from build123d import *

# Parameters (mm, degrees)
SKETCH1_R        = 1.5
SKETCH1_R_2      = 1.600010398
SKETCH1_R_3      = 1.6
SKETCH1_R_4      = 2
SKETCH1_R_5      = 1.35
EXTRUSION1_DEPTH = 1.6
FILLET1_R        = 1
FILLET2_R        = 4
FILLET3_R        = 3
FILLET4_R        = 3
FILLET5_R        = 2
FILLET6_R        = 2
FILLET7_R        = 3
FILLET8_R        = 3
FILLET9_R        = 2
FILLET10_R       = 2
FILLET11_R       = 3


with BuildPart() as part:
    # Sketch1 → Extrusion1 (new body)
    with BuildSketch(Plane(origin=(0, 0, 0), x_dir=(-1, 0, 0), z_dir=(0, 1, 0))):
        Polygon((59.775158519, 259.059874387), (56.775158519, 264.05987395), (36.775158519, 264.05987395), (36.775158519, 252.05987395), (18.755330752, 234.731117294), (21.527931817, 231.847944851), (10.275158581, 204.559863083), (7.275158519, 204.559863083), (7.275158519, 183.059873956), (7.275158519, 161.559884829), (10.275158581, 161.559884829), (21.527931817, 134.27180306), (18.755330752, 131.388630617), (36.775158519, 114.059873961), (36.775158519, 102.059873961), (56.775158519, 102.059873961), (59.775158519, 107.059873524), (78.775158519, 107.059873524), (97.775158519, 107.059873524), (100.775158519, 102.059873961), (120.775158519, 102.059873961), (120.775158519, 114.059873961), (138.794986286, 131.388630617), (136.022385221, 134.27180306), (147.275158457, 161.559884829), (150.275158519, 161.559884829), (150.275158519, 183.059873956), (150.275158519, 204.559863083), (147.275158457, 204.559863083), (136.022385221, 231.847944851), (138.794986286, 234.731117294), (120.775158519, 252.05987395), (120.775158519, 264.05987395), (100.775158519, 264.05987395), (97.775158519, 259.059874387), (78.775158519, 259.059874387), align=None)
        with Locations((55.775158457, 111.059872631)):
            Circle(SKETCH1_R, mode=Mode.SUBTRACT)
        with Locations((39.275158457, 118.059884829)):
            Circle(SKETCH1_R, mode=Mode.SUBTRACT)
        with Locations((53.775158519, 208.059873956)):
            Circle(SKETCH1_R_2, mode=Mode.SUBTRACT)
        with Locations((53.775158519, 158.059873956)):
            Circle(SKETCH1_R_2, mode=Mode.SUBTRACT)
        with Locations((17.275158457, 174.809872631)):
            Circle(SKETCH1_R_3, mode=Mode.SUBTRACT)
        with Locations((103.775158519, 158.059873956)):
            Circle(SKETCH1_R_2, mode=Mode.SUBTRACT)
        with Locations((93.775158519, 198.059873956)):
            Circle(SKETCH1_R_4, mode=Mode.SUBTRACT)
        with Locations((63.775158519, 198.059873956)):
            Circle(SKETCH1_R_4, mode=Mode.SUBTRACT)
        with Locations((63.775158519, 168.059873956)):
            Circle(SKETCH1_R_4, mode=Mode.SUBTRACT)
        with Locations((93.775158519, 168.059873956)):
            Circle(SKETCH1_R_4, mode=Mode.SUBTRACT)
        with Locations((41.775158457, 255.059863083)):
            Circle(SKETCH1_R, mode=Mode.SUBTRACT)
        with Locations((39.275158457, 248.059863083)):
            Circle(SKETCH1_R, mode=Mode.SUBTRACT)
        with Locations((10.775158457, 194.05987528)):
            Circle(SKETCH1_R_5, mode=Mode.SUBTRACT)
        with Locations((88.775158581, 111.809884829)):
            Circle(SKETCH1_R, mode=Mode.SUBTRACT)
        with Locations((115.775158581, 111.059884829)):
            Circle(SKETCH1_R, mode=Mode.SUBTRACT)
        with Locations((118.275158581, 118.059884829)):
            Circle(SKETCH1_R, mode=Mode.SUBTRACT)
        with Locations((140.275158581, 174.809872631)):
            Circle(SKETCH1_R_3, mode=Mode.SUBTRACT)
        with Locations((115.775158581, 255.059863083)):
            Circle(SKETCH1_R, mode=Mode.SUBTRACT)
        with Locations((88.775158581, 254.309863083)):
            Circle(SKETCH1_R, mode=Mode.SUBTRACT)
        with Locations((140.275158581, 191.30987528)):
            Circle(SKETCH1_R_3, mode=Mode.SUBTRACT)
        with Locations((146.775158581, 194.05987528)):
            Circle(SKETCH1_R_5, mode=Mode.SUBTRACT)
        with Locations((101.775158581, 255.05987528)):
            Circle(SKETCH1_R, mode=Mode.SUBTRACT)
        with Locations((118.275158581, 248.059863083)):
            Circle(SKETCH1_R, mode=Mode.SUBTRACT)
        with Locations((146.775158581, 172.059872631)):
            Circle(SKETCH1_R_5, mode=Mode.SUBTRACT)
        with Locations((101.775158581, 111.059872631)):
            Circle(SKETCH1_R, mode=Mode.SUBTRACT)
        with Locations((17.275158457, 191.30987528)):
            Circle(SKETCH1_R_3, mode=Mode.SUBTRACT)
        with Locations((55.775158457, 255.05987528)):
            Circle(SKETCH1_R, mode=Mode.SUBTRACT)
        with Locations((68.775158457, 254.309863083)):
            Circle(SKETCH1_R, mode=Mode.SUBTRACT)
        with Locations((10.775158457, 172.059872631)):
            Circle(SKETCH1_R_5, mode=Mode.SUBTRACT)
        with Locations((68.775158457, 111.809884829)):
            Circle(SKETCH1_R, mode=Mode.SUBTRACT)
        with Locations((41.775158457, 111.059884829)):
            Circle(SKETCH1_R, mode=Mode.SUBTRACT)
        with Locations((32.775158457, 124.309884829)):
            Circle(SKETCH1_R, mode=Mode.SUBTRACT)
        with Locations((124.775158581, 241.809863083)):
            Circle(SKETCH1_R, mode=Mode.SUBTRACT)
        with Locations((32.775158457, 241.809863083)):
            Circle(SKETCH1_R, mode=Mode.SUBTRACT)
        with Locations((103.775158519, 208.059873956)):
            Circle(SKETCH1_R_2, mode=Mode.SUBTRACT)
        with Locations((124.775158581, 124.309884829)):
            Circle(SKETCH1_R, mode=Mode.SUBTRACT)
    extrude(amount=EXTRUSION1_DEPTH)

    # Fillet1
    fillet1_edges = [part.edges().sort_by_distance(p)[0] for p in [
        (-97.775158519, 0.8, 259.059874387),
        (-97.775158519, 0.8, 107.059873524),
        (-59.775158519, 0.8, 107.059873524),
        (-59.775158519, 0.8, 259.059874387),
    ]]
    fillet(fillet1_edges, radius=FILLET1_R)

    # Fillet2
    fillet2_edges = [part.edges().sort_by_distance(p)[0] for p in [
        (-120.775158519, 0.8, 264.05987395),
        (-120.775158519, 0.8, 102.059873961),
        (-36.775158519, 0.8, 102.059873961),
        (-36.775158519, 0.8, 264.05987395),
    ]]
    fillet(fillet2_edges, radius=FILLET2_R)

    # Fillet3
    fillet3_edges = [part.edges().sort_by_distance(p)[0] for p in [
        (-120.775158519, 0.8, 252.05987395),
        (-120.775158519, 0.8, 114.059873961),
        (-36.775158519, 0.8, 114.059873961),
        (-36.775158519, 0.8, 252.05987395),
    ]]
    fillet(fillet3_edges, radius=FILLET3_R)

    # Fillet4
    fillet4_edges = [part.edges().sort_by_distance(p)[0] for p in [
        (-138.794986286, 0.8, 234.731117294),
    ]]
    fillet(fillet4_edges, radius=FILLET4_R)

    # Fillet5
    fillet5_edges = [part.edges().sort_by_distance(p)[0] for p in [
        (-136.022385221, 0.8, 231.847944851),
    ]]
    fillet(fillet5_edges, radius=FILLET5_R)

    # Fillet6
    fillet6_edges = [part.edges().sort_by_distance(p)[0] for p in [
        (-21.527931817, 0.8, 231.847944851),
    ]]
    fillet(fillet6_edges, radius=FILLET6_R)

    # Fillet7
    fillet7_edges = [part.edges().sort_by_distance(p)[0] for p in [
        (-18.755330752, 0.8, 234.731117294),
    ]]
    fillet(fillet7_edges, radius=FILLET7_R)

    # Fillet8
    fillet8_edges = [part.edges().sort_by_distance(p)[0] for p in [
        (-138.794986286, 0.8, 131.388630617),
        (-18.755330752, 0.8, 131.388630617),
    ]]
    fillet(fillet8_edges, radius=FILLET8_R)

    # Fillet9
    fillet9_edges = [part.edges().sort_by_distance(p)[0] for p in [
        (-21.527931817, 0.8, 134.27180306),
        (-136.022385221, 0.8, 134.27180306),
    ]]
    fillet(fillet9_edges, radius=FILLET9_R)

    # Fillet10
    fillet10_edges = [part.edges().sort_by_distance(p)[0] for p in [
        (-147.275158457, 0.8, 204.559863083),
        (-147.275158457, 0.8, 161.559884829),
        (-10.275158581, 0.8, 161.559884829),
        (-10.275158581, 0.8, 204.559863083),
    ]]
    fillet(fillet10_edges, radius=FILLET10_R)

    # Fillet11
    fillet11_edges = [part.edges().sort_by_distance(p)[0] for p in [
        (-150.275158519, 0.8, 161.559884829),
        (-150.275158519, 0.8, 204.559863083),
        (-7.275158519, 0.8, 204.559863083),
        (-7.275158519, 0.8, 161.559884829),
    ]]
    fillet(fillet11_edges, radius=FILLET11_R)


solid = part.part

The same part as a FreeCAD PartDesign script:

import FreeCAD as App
import Part
import Sketcher
Q = App.Units.Quantity


def edges_at(feature, points):
    """Names of the edges that pass closest to the given points."""
    edges = feature.Shape.Edges
    near = lambda p: min(range(len(edges)), key=lambda i: edges[i].distToShape(Part.Vertex(*p))[0])
    return sorted({f"Edge{near(p) + 1}" for p in points})

doc = App.newDocument("Part")
body = doc.addObject("PartDesign::Body", "Body")

# Sketch on XZ plane
sketch1 = body.newObject("Sketcher::SketchObject", "Sketch")
sketch1.AttachmentSupport = (doc.getObject("XZ_Plane"), [""])
sketch1.MapMode = "FlatFace"
sketch1.addGeometry([
    Part.LineSegment(App.Vector(-59.775159, 259.059874, 0), App.Vector(-56.775159, 264.059874, 0)),  # 0
    Part.LineSegment(App.Vector(-56.775159, 264.059874, 0), App.Vector(-36.775159, 264.059874, 0)),  # 1
    Part.LineSegment(App.Vector(-36.775159, 264.059874, 0), App.Vector(-36.775159, 252.059874, 0)),  # 2
    Part.LineSegment(App.Vector(-36.775159, 252.059874, 0), App.Vector(-18.755331, 234.731117, 0)),  # 3
    Part.LineSegment(App.Vector(-18.755331, 234.731117, 0), App.Vector(-21.527932, 231.847945, 0)),  # 4
    Part.LineSegment(App.Vector(-21.527932, 231.847945, 0), App.Vector(-10.275159, 204.559863, 0)),  # 5
    Part.LineSegment(App.Vector(-10.275159, 204.559863, 0), App.Vector(-7.275159, 204.559863, 0)),  # 6
    Part.LineSegment(App.Vector(-7.275159, 204.559863, 0), App.Vector(-7.275159, 161.559885, 0)),  # 7
    Part.LineSegment(App.Vector(-7.275159, 161.559885, 0), App.Vector(-10.275159, 161.559885, 0)),  # 8
    Part.LineSegment(App.Vector(-10.275159, 161.559885, 0), App.Vector(-21.527932, 134.271803, 0)),  # 9
    Part.LineSegment(App.Vector(-21.527932, 134.271803, 0), App.Vector(-18.755331, 131.388631, 0)),  # 10
    Part.LineSegment(App.Vector(-18.755331, 131.388631, 0), App.Vector(-36.775159, 114.059874, 0)),  # 11
    Part.LineSegment(App.Vector(-36.775159, 114.059874, 0), App.Vector(-36.775159, 102.059874, 0)),  # 12
    Part.LineSegment(App.Vector(-36.775159, 102.059874, 0), App.Vector(-56.775159, 102.059874, 0)),  # 13
    Part.LineSegment(App.Vector(-56.775159, 102.059874, 0), App.Vector(-59.775159, 107.059874, 0)),  # 14
    Part.LineSegment(App.Vector(-59.775159, 107.059874, 0), App.Vector(-97.775159, 107.059874, 0)),  # 15
    Part.LineSegment(App.Vector(-97.775159, 107.059874, 0), App.Vector(-100.775159, 102.059874, 0)),  # 16
    Part.LineSegment(App.Vector(-100.775159, 102.059874, 0), App.Vector(-120.775159, 102.059874, 0)),  # 17
    Part.LineSegment(App.Vector(-120.775159, 102.059874, 0), App.Vector(-120.775159, 114.059874, 0)),  # 18
    Part.LineSegment(App.Vector(-120.775159, 114.059874, 0), App.Vector(-138.794986, 131.388631, 0)),  # 19
    Part.LineSegment(App.Vector(-138.794986, 131.388631, 0), App.Vector(-136.022385, 134.271803, 0)),  # 20
    Part.LineSegment(App.Vector(-136.022385, 134.271803, 0), App.Vector(-147.275158, 161.559885, 0)),  # 21
    Part.LineSegment(App.Vector(-147.275158, 161.559885, 0), App.Vector(-150.275159, 161.559885, 0)),  # 22
    Part.LineSegment(App.Vector(-150.275159, 161.559885, 0), App.Vector(-150.275159, 204.559863, 0)),  # 23
    Part.LineSegment(App.Vector(-150.275159, 204.559863, 0), App.Vector(-147.275158, 204.559863, 0)),  # 24
    Part.LineSegment(App.Vector(-147.275158, 204.559863, 0), App.Vector(-136.022385, 231.847945, 0)),  # 25
    Part.LineSegment(App.Vector(-136.022385, 231.847945, 0), App.Vector(-138.794986, 234.731117, 0)),  # 26
    Part.LineSegment(App.Vector(-138.794986, 234.731117, 0), App.Vector(-120.775159, 252.059874, 0)),  # 27
    Part.LineSegment(App.Vector(-120.775159, 252.059874, 0), App.Vector(-120.775159, 264.059874, 0)),  # 28
    Part.LineSegment(App.Vector(-120.775159, 264.059874, 0), App.Vector(-100.775159, 264.059874, 0)),  # 29
    Part.LineSegment(App.Vector(-100.775159, 264.059874, 0), App.Vector(-97.775159, 259.059874, 0)),  # 30
    Part.LineSegment(App.Vector(-97.775159, 259.059874, 0), App.Vector(-59.775159, 259.059874, 0)),  # 31
    Part.Circle(App.Vector(-41.775158, 111.059885, 0), App.Vector(0, 0, 1), 1.5),  # 32
    Part.Circle(App.Vector(-39.275158, 118.059885, 0), App.Vector(0, 0, 1), 1.5),  # 33
    Part.Circle(App.Vector(-32.775158, 124.309885, 0), App.Vector(0, 0, 1), 1.5),  # 34
    Part.Circle(App.Vector(-55.775158, 111.059873, 0), App.Vector(0, 0, 1), 1.5),  # 35
    Part.Circle(App.Vector(-68.775158, 111.809885, 0), App.Vector(0, 0, 1), 1.5),  # 36
    Part.Circle(App.Vector(-10.775158, 172.059873, 0), App.Vector(0, 0, 1), 1.35),  # 37
    Part.Circle(App.Vector(-17.275158, 174.809873, 0), App.Vector(0, 0, 1), 1.6),  # 38
    Part.Circle(App.Vector(-53.775159, 158.059874, 0), App.Vector(0, 0, 1), 1.60001),  # 39
    Part.Circle(App.Vector(-63.775159, 168.059874, 0), App.Vector(0, 0, 1), 2),  # 40
    Part.Circle(App.Vector(-88.775159, 111.809885, 0), App.Vector(0, 0, 1), 1.5),  # 41
    Part.Circle(App.Vector(-101.775159, 111.059873, 0), App.Vector(0, 0, 1), 1.5),  # 42
    Part.Circle(App.Vector(-115.775159, 111.059885, 0), App.Vector(0, 0, 1), 1.5),  # 43
    Part.Circle(App.Vector(-118.275159, 118.059885, 0), App.Vector(0, 0, 1), 1.5),  # 44
    Part.Circle(App.Vector(-124.775159, 124.309885, 0), App.Vector(0, 0, 1), 1.5),  # 45
    Part.Circle(App.Vector(-103.775159, 158.059874, 0), App.Vector(0, 0, 1), 1.60001),  # 46
    Part.Circle(App.Vector(-93.775159, 168.059874, 0), App.Vector(0, 0, 1), 2),  # 47
    Part.Circle(App.Vector(-146.775159, 172.059873, 0), App.Vector(0, 0, 1), 1.35),  # 48
    Part.Circle(App.Vector(-140.275159, 174.809873, 0), App.Vector(0, 0, 1), 1.6),  # 49
    Part.Circle(App.Vector(-17.275158, 191.309875, 0), App.Vector(0, 0, 1), 1.6),  # 50
    Part.Circle(App.Vector(-10.775158, 194.059875, 0), App.Vector(0, 0, 1), 1.35),  # 51
    Part.Circle(App.Vector(-63.775159, 198.059874, 0), App.Vector(0, 0, 1), 2),  # 52
    Part.Circle(App.Vector(-53.775159, 208.059874, 0), App.Vector(0, 0, 1), 1.60001),  # 53
    Part.Circle(App.Vector(-32.775158, 241.809863, 0), App.Vector(0, 0, 1), 1.5),  # 54
    Part.Circle(App.Vector(-39.275158, 248.059863, 0), App.Vector(0, 0, 1), 1.5),  # 55
    Part.Circle(App.Vector(-41.775158, 255.059863, 0), App.Vector(0, 0, 1), 1.5),  # 56
    Part.Circle(App.Vector(-55.775158, 255.059875, 0), App.Vector(0, 0, 1), 1.5),  # 57
    Part.Circle(App.Vector(-68.775158, 254.309863, 0), App.Vector(0, 0, 1), 1.5),  # 58
    Part.Circle(App.Vector(-93.775159, 198.059874, 0), App.Vector(0, 0, 1), 2),  # 59
    Part.Circle(App.Vector(-103.775159, 208.059874, 0), App.Vector(0, 0, 1), 1.60001),  # 60
    Part.Circle(App.Vector(-140.275159, 191.309875, 0), App.Vector(0, 0, 1), 1.6),  # 61
    Part.Circle(App.Vector(-146.775159, 194.059875, 0), App.Vector(0, 0, 1), 1.35),  # 62
    Part.Circle(App.Vector(-88.775159, 254.309863, 0), App.Vector(0, 0, 1), 1.5),  # 63
    Part.Circle(App.Vector(-101.775159, 255.059875, 0), App.Vector(0, 0, 1), 1.5),  # 64
    Part.Circle(App.Vector(-124.775159, 241.809863, 0), App.Vector(0, 0, 1), 1.5),  # 65
    Part.Circle(App.Vector(-118.275159, 248.059863, 0), App.Vector(0, 0, 1), 1.5),  # 66
    Part.Circle(App.Vector(-115.775159, 255.059863, 0), App.Vector(0, 0, 1), 1.5),  # 67
], False)
sketch1.addConstraint([
    Sketcher.Constraint("Coincident", 0, 2, 1, 1),
    Sketcher.Constraint("Coincident", 1, 2, 2, 1),
    Sketcher.Constraint("Coincident", 2, 2, 3, 1),
    Sketcher.Constraint("Coincident", 3, 2, 4, 1),
    Sketcher.Constraint("Coincident", 4, 2, 5, 1),
    Sketcher.Constraint("Coincident", 5, 2, 6, 1),
    Sketcher.Constraint("Coincident", 6, 2, 7, 1),
    Sketcher.Constraint("Coincident", 7, 2, 8, 1),
    Sketcher.Constraint("Coincident", 8, 2, 9, 1),
    Sketcher.Constraint("Coincident", 9, 2, 10, 1),
    Sketcher.Constraint("Coincident", 10, 2, 11, 1),
    Sketcher.Constraint("Coincident", 11, 2, 12, 1),
    Sketcher.Constraint("Coincident", 12, 2, 13, 1),
    Sketcher.Constraint("Coincident", 13, 2, 14, 1),
    Sketcher.Constraint("Coincident", 14, 2, 15, 1),
    Sketcher.Constraint("Coincident", 15, 2, 16, 1),
    Sketcher.Constraint("Coincident", 16, 2, 17, 1),
    Sketcher.Constraint("Coincident", 17, 2, 18, 1),
    Sketcher.Constraint("Coincident", 18, 2, 19, 1),
    Sketcher.Constraint("Coincident", 19, 2, 20, 1),
    Sketcher.Constraint("Coincident", 20, 2, 21, 1),
    Sketcher.Constraint("Coincident", 21, 2, 22, 1),
    Sketcher.Constraint("Coincident", 22, 2, 23, 1),
    Sketcher.Constraint("Coincident", 23, 2, 24, 1),
    Sketcher.Constraint("Coincident", 24, 2, 25, 1),
    Sketcher.Constraint("Coincident", 25, 2, 26, 1),
    Sketcher.Constraint("Coincident", 26, 2, 27, 1),
    Sketcher.Constraint("Coincident", 27, 2, 28, 1),
    Sketcher.Constraint("Coincident", 28, 2, 29, 1),
    Sketcher.Constraint("Coincident", 29, 2, 30, 1),
    Sketcher.Constraint("Coincident", 30, 2, 31, 1),
    Sketcher.Constraint("Coincident", 31, 2, 0, 1),
    Sketcher.Constraint("Horizontal", 1),
    Sketcher.Constraint("Vertical", 2),
    Sketcher.Constraint("Horizontal", 6),
    Sketcher.Constraint("Vertical", 7),
    Sketcher.Constraint("Horizontal", 8),
    Sketcher.Constraint("Vertical", 12),
    Sketcher.Constraint("Horizontal", 13),
    Sketcher.Constraint("Horizontal", 15),
    Sketcher.Constraint("Horizontal", 17),
    Sketcher.Constraint("Vertical", 18),
    Sketcher.Constraint("Horizontal", 22),
    Sketcher.Constraint("Vertical", 23),
    Sketcher.Constraint("Horizontal", 24),
    Sketcher.Constraint("Vertical", 28),
    Sketcher.Constraint("Horizontal", 29),
    Sketcher.Constraint("Horizontal", 31),
    Sketcher.Constraint("Equal", 32, 33),
    Sketcher.Constraint("Equal", 33, 34),
    Sketcher.Constraint("Equal", 34, 35),
    Sketcher.Constraint("Equal", 35, 36),
    Sketcher.Constraint("Equal", 36, 41),
    Sketcher.Constraint("Equal", 41, 42),
    Sketcher.Constraint("Equal", 42, 43),
    Sketcher.Constraint("Equal", 43, 44),
    Sketcher.Constraint("Equal", 44, 45),
    Sketcher.Constraint("Equal", 39, 46),
    Sketcher.Constraint("Equal", 40, 47),
    Sketcher.Constraint("Equal", 37, 48),
    Sketcher.Constraint("Equal", 38, 49),
    Sketcher.Constraint("Equal", 49, 50),
    Sketcher.Constraint("Equal", 48, 51),
    Sketcher.Constraint("Equal", 47, 52),
    Sketcher.Constraint("Equal", 46, 53),
    Sketcher.Constraint("Equal", 45, 54),
    Sketcher.Constraint("Equal", 54, 55),
    Sketcher.Constraint("Equal", 55, 56),
    Sketcher.Constraint("Equal", 56, 57),
    Sketcher.Constraint("Equal", 57, 58),
    Sketcher.Constraint("Equal", 52, 59),
    Sketcher.Constraint("Equal", 53, 60),
    Sketcher.Constraint("Equal", 50, 61),
    Sketcher.Constraint("Equal", 51, 62),
    Sketcher.Constraint("Equal", 58, 63),
    Sketcher.Constraint("Equal", 63, 64),
    Sketcher.Constraint("Equal", 64, 65),
    Sketcher.Constraint("Equal", 65, 66),
    Sketcher.Constraint("Equal", 66, 67),
    Sketcher.Constraint("Perpendicular", 3, 4),
    Sketcher.Constraint("Perpendicular", 10, 11),
    Sketcher.Constraint("Parallel", 0, 16),
    Sketcher.Constraint("Perpendicular", 4, 19),
    Sketcher.Constraint("Perpendicular", 19, 20),
    Sketcher.Constraint("Parallel", 5, 21),
    Sketcher.Constraint("Parallel", 9, 25),
    Sketcher.Constraint("Perpendicular", 11, 26),
    Sketcher.Constraint("Perpendicular", 26, 27),
    Sketcher.Constraint("Parallel", 14, 30),
    Sketcher.Constraint("Horizontal", 36, 3, 41, 3),
    Sketcher.Constraint("Horizontal", 35, 3, 42, 3),
    Sketcher.Constraint("Horizontal", 32, 3, 43, 3),
    Sketcher.Constraint("Horizontal", 33, 3, 44, 3),
    Sketcher.Constraint("Horizontal", 34, 3, 45, 3),
    Sketcher.Constraint("Horizontal", 39, 3, 46, 3),
    Sketcher.Constraint("Horizontal", 40, 3, 47, 3),
    Sketcher.Constraint("Horizontal", 37, 3, 48, 3),
    Sketcher.Constraint("Horizontal", 38, 3, 49, 3),
    Sketcher.Constraint("Horizontal", 52, 3, 59, 3),
    Sketcher.Constraint("Horizontal", 53, 3, 60, 3),
    Sketcher.Constraint("Horizontal", 50, 3, 61, 3),
    Sketcher.Constraint("Horizontal", 51, 3, 62, 3),
    Sketcher.Constraint("Horizontal", 58, 3, 63, 3),
    Sketcher.Constraint("Horizontal", 57, 3, 64, 3),
    Sketcher.Constraint("Horizontal", 54, 3, 65, 3),
    Sketcher.Constraint("Horizontal", 55, 3, 66, 3),
    Sketcher.Constraint("Horizontal", 56, 3, 67, 3),
    Sketcher.Constraint("Horizontal", 13, 2, 16, 2),
    Sketcher.Constraint("Horizontal", 11, 2, 18, 2),
    Sketcher.Constraint("Horizontal", 10, 2, 19, 2),
    Sketcher.Constraint("Horizontal", 9, 2, 20, 2),
    Sketcher.Constraint("Horizontal", 8, 2, 21, 2),
    Sketcher.Constraint("Horizontal", 6, 2, 23, 2),
    Sketcher.Constraint("Horizontal", 4, 2, 25, 2),
    Sketcher.Constraint("Horizontal", 3, 2, 26, 2),
    Sketcher.Constraint("Horizontal", 2, 2, 27, 2),
    Sketcher.Constraint("Horizontal", 1, 2, 28, 2),
    Sketcher.Constraint("Vertical", 38, 3, 50, 3),
    Sketcher.Constraint("Vertical", 37, 3, 51, 3),
    Sketcher.Constraint("Vertical", 40, 3, 52, 3),
    Sketcher.Constraint("Vertical", 39, 3, 53, 3),
    Sketcher.Constraint("Vertical", 34, 3, 54, 3),
    Sketcher.Constraint("Vertical", 33, 3, 55, 3),
    Sketcher.Constraint("Vertical", 32, 3, 56, 3),
    Sketcher.Constraint("Vertical", 35, 3, 57, 3),
    Sketcher.Constraint("Vertical", 36, 3, 58, 3),
    Sketcher.Constraint("Vertical", 47, 3, 59, 3),
    Sketcher.Constraint("Vertical", 46, 3, 60, 3),
    Sketcher.Constraint("Vertical", 49, 3, 61, 3),
    Sketcher.Constraint("Vertical", 48, 3, 62, 3),
    Sketcher.Constraint("Vertical", 41, 3, 63, 3),
    Sketcher.Constraint("Vertical", 42, 3, 64, 3),
    Sketcher.Constraint("Vertical", 45, 3, 65, 3),
    Sketcher.Constraint("Vertical", 44, 3, 66, 3),
    Sketcher.Constraint("Vertical", 43, 3, 67, 3),
    Sketcher.Constraint("Vertical", 5, 2, 8, 2),
    Sketcher.Constraint("Vertical", 4, 2, 9, 2),
    Sketcher.Constraint("Vertical", 3, 2, 10, 2),
    Sketcher.Constraint("Vertical", 2, 2, 11, 2),
    Sketcher.Constraint("Vertical", 0, 2, 13, 2),
    Sketcher.Constraint("Vertical", 21, 2, 24, 2),
    Sketcher.Constraint("Vertical", 20, 2, 25, 2),
    Sketcher.Constraint("Vertical", 19, 2, 26, 2),
    Sketcher.Constraint("Vertical", 16, 2, 29, 2),
    Sketcher.Constraint("Vertical", 15, 2, 30, 2),
    Sketcher.Constraint("Vertical", 14, 2, 31, 2),
    Sketcher.Constraint("Equal", 13, 17),
    Sketcher.Constraint("Equal", 8, 22),
    Sketcher.Constraint("Equal", 2, 12),
    Sketcher.Constraint("Diameter", 32, Q("3 mm")),
    Sketcher.Constraint("Diameter", 40, Q("4 mm")),
    Sketcher.Constraint("Diameter", 37, Q("2.7 mm")),
    Sketcher.Constraint("Diameter", 38, Q("3.2 mm")),
    Sketcher.Constraint("DistanceX", 1, 1, 1, 2, Q("20 mm")),
    Sketcher.Constraint("DistanceX", 6, 1, 6, 2, Q("3 mm")),
    Sketcher.Constraint("DistanceX", 15, 2, 15, 1, Q("38 mm")),
    Sketcher.Constraint("DistanceY", 2, 2, 2, 1, Q("12 mm")),
    Sketcher.Constraint("Distance", 3, Q("25 mm")),
    Sketcher.Constraint("Distance", 4, Q("4 mm")),
    Sketcher.Constraint("Angle", 3, Q("-43.88 deg")),
    Sketcher.Constraint("Diameter", 39, Q("3.200021 mm")),
    Sketcher.Constraint("DistanceY", 7, 2, 7, 1, Q("42.999978 mm")),
    Sketcher.Constraint("Distance", 0, Q("5.830952 mm")),
    Sketcher.Constraint("DistanceX", 32, 3, -1, 1, Q("41.775158 mm")),
    Sketcher.Constraint("DistanceX", 33, 3, -1, 1, Q("39.275158 mm")),
    Sketcher.Constraint("DistanceX", 34, 3, -1, 1, Q("32.775158 mm")),
    Sketcher.Constraint("DistanceX", 35, 3, -1, 1, Q("55.775158 mm")),
    Sketcher.Constraint("DistanceX", 36, 3, -1, 1, Q("68.775158 mm")),
    Sketcher.Constraint("DistanceX", 37, 3, -1, 1, Q("10.775158 mm")),
    Sketcher.Constraint("DistanceX", 38, 3, -1, 1, Q("17.275158 mm")),
    Sketcher.Constraint("DistanceX", 39, 3, -1, 1, Q("53.775159 mm")),
    Sketcher.Constraint("DistanceX", 40, 3, -1, 1, Q("63.775159 mm")),
    Sketcher.Constraint("DistanceX", 41, 3, -1, 1, Q("88.775159 mm")),
    Sketcher.Constraint("DistanceX", 42, 3, -1, 1, Q("101.775159 mm")),
    Sketcher.Constraint("DistanceX", 43, 3, -1, 1, Q("115.775159 mm")),
    Sketcher.Constraint("DistanceX", 44, 3, -1, 1, Q("118.275159 mm")),
    Sketcher.Constraint("DistanceX", 45, 3, -1, 1, Q("124.775159 mm")),
    Sketcher.Constraint("DistanceX", 46, 3, -1, 1, Q("103.775159 mm")),
    Sketcher.Constraint("DistanceX", 47, 3, -1, 1, Q("93.775159 mm")),
    Sketcher.Constraint("DistanceX", 48, 3, -1, 1, Q("146.775159 mm")),
    Sketcher.Constraint("DistanceX", 49, 3, -1, 1, Q("140.275159 mm")),
    Sketcher.Constraint("DistanceX", 0, 2, -1, 1, Q("56.775159 mm")),
    Sketcher.Constraint("DistanceX", 5, 2, -1, 1, Q("10.275159 mm")),
    Sketcher.Constraint("DistanceY", -1, 1, 10, 2, Q("131.388631 mm")),
    Sketcher.Constraint("DistanceX", 14, 2, -1, 1, Q("59.775159 mm")),
    Sketcher.Constraint("Distance", 5, Q("29.517187 mm")),
    Sketcher.Constraint("DistanceY", -1, 1, 32, 3, Q("111.059885 mm")),
    Sketcher.Constraint("DistanceY", -1, 1, 33, 3, Q("118.059885 mm")),
    Sketcher.Constraint("DistanceY", -1, 1, 34, 3, Q("124.309885 mm")),
    Sketcher.Constraint("DistanceY", -1, 1, 35, 3, Q("111.059873 mm")),
    Sketcher.Constraint("DistanceY", -1, 1, 36, 3, Q("111.809885 mm")),
    Sketcher.Constraint("DistanceY", -1, 1, 37, 3, Q("172.059873 mm")),
    Sketcher.Constraint("DistanceY", -1, 1, 38, 3, Q("174.809873 mm")),
    Sketcher.Constraint("DistanceY", -1, 1, 39, 3, Q("158.059874 mm")),
    Sketcher.Constraint("DistanceY", -1, 1, 40, 3, Q("168.059874 mm")),
    Sketcher.Constraint("DistanceY", -1, 1, 50, 3, Q("191.309875 mm")),
    Sketcher.Constraint("DistanceY", -1, 1, 51, 3, Q("194.059875 mm")),
    Sketcher.Constraint("DistanceY", -1, 1, 52, 3, Q("198.059874 mm")),
    Sketcher.Constraint("DistanceY", -1, 1, 53, 3, Q("208.059874 mm")),
    Sketcher.Constraint("DistanceY", -1, 1, 54, 3, Q("241.809863 mm")),
    Sketcher.Constraint("DistanceY", -1, 1, 55, 3, Q("248.059863 mm")),
    Sketcher.Constraint("DistanceY", -1, 1, 56, 3, Q("255.059863 mm")),
    Sketcher.Constraint("DistanceY", -1, 1, 57, 3, Q("255.059875 mm")),
    Sketcher.Constraint("DistanceY", -1, 1, 58, 3, Q("254.309863 mm")),
])
pad1 = body.newObject("PartDesign::Pad", "Pad")
pad1.Profile = sketch1
pad1.Length = 1.6
pad1.Reversed = True
doc.recompute()

fillet = body.newObject("PartDesign::Fillet", "Fillet")
fillet.Base = (pad1, edges_at(pad1, [
    (-97.775, 0.8, 259.06),
    (-97.775, 0.8, 107.06),
    (-59.775, 0.8, 107.06),
    (-59.775, 0.8, 259.06),
]))
fillet.Radius = 1
doc.recompute()

fillet2 = body.newObject("PartDesign::Fillet", "Fillet001")
fillet2.Base = (fillet, edges_at(fillet, [
    (-120.775, 0.8, 264.06),
    (-120.775, 0.8, 102.06),
    (-36.775, 0.8, 102.06),
    (-36.775, 0.8, 264.06),
]))
fillet2.Radius = 4
doc.recompute()

fillet3 = body.newObject("PartDesign::Fillet", "Fillet002")
fillet3.Base = (fillet2, edges_at(fillet2, [
    (-120.775, 0.8, 252.06),
    (-120.775, 0.8, 114.06),
    (-36.775, 0.8, 114.06),
    (-36.775, 0.8, 252.06),
]))
fillet3.Radius = 3
doc.recompute()

fillet4 = body.newObject("PartDesign::Fillet", "Fillet003")
fillet4.Base = (fillet3, edges_at(fillet3, [(-138.795, 0.8, 234.731)]))
fillet4.Radius = 3
doc.recompute()

fillet5 = body.newObject("PartDesign::Fillet", "Fillet004")
fillet5.Base = (fillet4, edges_at(fillet4, [(-136.022, 0.8, 231.848)]))
fillet5.Radius = 2
doc.recompute()

fillet6 = body.newObject("PartDesign::Fillet", "Fillet005")
fillet6.Base = (fillet5, edges_at(fillet5, [(-21.528, 0.8, 231.848)]))
fillet6.Radius = 2
doc.recompute()

fillet7 = body.newObject("PartDesign::Fillet", "Fillet006")
fillet7.Base = (fillet6, edges_at(fillet6, [(-18.755, 0.8, 234.731)]))
fillet7.Radius = 3
doc.recompute()

fillet8 = body.newObject("PartDesign::Fillet", "Fillet007")
fillet8.Base = (fillet7, edges_at(fillet7, [(-138.795, 0.8, 131.389), (-18.755, 0.8, 131.389)]))
fillet8.Radius = 3
doc.recompute()

fillet9 = body.newObject("PartDesign::Fillet", "Fillet008")
fillet9.Base = (fillet8, edges_at(fillet8, [(-21.528, 0.8, 134.272), (-136.022, 0.8, 134.272)]))
fillet9.Radius = 2
doc.recompute()

fillet10 = body.newObject("PartDesign::Fillet", "Fillet009")
fillet10.Base = (fillet9, edges_at(fillet9, [
    (-147.275, 0.8, 204.56),
    (-147.275, 0.8, 161.56),
    (-10.275, 0.8, 161.56),
    (-10.275, 0.8, 204.56),
]))
fillet10.Radius = 2
doc.recompute()

fillet11 = body.newObject("PartDesign::Fillet", "Fillet010")
fillet11.Base = (fillet10, edges_at(fillet10, [
    (-150.275, 0.8, 161.56),
    (-150.275, 0.8, 204.56),
    (-7.275, 0.8, 204.56),
    (-7.275, 0.8, 161.56),
]))
fillet11.Radius = 3

doc.recompute()
